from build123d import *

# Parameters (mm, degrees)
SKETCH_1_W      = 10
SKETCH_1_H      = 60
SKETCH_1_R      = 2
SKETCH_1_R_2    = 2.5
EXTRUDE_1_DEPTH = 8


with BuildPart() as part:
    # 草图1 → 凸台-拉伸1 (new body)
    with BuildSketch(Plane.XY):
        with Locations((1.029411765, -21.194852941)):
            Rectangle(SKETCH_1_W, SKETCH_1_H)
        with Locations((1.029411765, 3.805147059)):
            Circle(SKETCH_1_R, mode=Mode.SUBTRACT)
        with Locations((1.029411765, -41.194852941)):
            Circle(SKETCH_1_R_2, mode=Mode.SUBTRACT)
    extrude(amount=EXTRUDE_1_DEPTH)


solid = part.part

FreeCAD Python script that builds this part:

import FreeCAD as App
import Part
import Sketcher

doc = App.newDocument("Part")
body = doc.addObject("PartDesign::Body", "Body")

# Sketch on XY plane
sketch1 = body.newObject("Sketcher::SketchObject", "Sketch")
sketch1.AttachmentSupport = (doc.getObject("XY_Plane"), [""])
sketch1.MapMode = "FlatFace"
sketch1.addGeometry([
    Part.LineSegment(App.Vector(-4, 8.8, 0), App.Vector(-4, -51.2, 0)),  # 0
    Part.LineSegment(App.Vector(-4, -51.2, 0), App.Vector(6, -51.2, 0)),  # 1
    Part.LineSegment(App.Vector(6, -51.2, 0), App.Vector(6, 8.8, 0)),  # 2
    Part.LineSegment(App.Vector(6, 8.8, 0), App.Vector(-4, 8.8, 0)),  # 3
    Part.Circle(App.Vector(1, -41.2, 0), App.Vector(0, 0, 1), 2.5),  # 4
    Part.Circle(App.Vector(1, 3.8, 0), App.Vector(0, 0, 1), 2),  # 5
], False)
sketch1.addConstraint([
    Sketcher.Constraint("Coincident", 0, 2, 1, 1),
    Sketcher.Constraint("Coincident", 1, 2, 2, 1),
    Sketcher.Constraint("Coincident", 2, 2, 3, 1),
    Sketcher.Constraint("Coincident", 3, 2, 0, 1),
    Sketcher.Constraint("Vertical", 0),
    Sketcher.Constraint("Horizontal", 1),
    Sketcher.Constraint("Vertical", 2),
    Sketcher.Constraint("Horizontal", 3),
    Sketcher.Constraint("Vertical", 4, 3, 5, 3),
    Sketcher.Constraint("Diameter", 4, 5.0),
    Sketcher.Constraint("Diameter", 5, 4.0),
    Sketcher.Constraint("DistanceX", 1, 1, 1, 2, 10.0),
    Sketcher.Constraint("DistanceY", 0, 2, 0, 1, 60.0),
    Sketcher.Constraint("DistanceY", 4, 3, 5, 3, 45.0),
    Sketcher.Constraint("DistanceX", 0, 2, 4, 3, 5.0),
    Sketcher.Constraint("DistanceY", 0, 2, 4, 3, 10.0),
    Sketcher.Constraint("DistanceX", -1, 1, 4, 3, 1.029412),
    Sketcher.Constraint("DistanceY", 4, 3, -1, 1, 41.194853),
])
pad1 = body.newObject("PartDesign::Pad", "Pad")
pad1.Profile = sketch1
pad1.Length = 8

doc.recompute()
